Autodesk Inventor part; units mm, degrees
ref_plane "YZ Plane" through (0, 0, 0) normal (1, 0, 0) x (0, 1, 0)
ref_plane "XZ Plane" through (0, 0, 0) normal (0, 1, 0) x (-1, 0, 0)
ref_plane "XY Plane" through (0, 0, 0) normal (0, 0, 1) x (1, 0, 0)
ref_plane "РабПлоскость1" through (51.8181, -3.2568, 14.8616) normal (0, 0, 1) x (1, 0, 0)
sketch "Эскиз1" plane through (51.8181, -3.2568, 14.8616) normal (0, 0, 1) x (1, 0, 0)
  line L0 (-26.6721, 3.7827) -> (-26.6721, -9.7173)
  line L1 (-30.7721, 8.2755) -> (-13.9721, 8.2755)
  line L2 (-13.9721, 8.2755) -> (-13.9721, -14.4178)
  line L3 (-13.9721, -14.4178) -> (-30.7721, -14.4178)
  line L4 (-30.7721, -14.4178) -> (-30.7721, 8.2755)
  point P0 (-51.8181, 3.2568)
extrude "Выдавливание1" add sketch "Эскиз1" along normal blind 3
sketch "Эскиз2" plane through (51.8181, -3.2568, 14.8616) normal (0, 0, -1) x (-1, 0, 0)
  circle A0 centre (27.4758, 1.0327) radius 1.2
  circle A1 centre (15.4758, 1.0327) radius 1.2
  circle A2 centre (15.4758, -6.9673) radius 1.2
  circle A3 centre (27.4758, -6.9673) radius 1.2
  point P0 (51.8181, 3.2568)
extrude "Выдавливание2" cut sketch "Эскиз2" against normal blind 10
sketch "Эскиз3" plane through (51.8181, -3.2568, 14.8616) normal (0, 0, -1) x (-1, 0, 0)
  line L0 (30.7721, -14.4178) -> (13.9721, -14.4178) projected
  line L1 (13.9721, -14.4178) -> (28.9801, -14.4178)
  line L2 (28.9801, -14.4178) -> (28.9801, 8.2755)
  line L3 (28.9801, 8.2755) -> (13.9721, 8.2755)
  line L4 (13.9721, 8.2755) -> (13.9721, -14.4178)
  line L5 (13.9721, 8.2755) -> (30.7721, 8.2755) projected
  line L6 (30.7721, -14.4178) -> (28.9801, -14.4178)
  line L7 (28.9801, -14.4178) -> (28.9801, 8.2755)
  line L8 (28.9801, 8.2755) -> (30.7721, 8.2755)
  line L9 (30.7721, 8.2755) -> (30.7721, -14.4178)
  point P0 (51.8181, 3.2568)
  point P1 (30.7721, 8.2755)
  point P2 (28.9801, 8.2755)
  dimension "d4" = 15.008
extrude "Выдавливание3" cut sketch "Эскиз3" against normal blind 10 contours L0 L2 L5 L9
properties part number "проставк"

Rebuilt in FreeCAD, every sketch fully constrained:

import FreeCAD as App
import Part
import Sketcher

V = App.Vector


def add_polygon(sketch, points):
    """Adds a closed chain of lines whose ends are joined by coincident constraints."""
    first, n = sketch.GeometryCount, len(points)
    for a, b in zip(points, points[1:] + points[:1]):
        sketch.addGeometry(Part.LineSegment(App.Vector(*a, 0), App.Vector(*b, 0)), False)
    for i in range(n):
        sketch.addConstraint(Sketcher.Constraint("Coincident", first + i, 2, first + (i + 1) % n, 1))

doc = App.newDocument("Part")
params = doc.addObject("Spreadsheet::Sheet", "Params")
for row, (alias, value) in enumerate([
    ("sketch1_width", "16.8 mm"),
    ("pad1_length", "3 mm"),
    ("sketch2_diameter", "2.4 mm"),
    ("pocket1_length", "10 mm"),
    ("pocket2_length", "10 mm"),
], start=1):
    params.set(f"A{row}", alias)
    params.set(f"B{row}", "=" + value)
    params.setAlias(f"B{row}", alias)

body = doc.addObject("PartDesign::Body", "Body")

sketch1 = body.newObject("Sketcher::SketchObject", "Sketch")
sketch1.AttachmentSupport = (doc.getObject("XY_Plane"), [""])
sketch1.MapMode = "FlatFace"
sketch1.AttachmentOffset = App.Placement(V(0, 0, 14.8616), App.Rotation())
add_polygon(sketch1, [(38, 5), (21, 5), (21, -18), (38, -18)])
sketch1.addConstraint([
    Sketcher.Constraint("Horizontal", 0),
    Sketcher.Constraint("Vertical", 1),
    Sketcher.Constraint("Horizontal", 2),
    Sketcher.Constraint("Vertical", 3),
    Sketcher.Constraint("DistanceX", 0, 2, 0, 1, 16.8),
    Sketcher.Constraint("DistanceY", 1, 2, 1, 1, 22.6933),
    Sketcher.Constraint("DistanceX", -1, 1, 0, 2, 21.046),
    Sketcher.Constraint("DistanceY", -1, 1, 0, 2, 5.0187),
])
sketch1.setExpression("Constraints[8]", "Params.sketch1_width")
pad1 = body.newObject("PartDesign::Pad", "Pad")
pad1.Profile = sketch1
pad1.setExpression("Length", "Params.pad1_length")

sketch2 = body.newObject("Sketcher::SketchObject", "Sketch001")
sketch2.AttachmentSupport = (doc.getObject("XY_Plane"), [""])
sketch2.MapMode = "FlatFace"
sketch2.AttachmentOffset = App.Placement(V(0, 0, 14.8616), App.Rotation())
sketch2.addGeometry([
    Part.Circle(V(24.3, -2.2, 0), V(0, 0, 1), 1.2),
    Part.Circle(V(36.3, -2.2, 0), V(0, 0, 1), 1.2),
    Part.Circle(V(36.3, -10.2, 0), V(0, 0, 1), 1.2),
    Part.Circle(V(24.3, -10.2, 0), V(0, 0, 1), 1.2),
], False)
sketch2.addConstraint([
    Sketcher.Constraint("Equal", 0, 1),
    Sketcher.Constraint("Equal", 1, 2),
    Sketcher.Constraint("Equal", 2, 3),
    Sketcher.Constraint("Horizontal", 0, 3, 1, 3),
    Sketcher.Constraint("Horizontal", 2, 3, 3, 3),
    Sketcher.Constraint("Vertical", 1, 3, 2, 3),
    Sketcher.Constraint("Vertical", 0, 3, 3, 3),
    Sketcher.Constraint("Diameter", 0, 2.4),
    Sketcher.Constraint("DistanceX", 0, 3, 1, 3, 12.0),
    Sketcher.Constraint("DistanceY", 2, 3, 1, 3, 8.0),
    Sketcher.Constraint("DistanceY", 0, 3, -1, 1, 2.224),
    Sketcher.Constraint("DistanceX", -1, 1, 0, 3, 24.3423),
])
sketch2.setExpression("Constraints[7]", "Params.sketch2_diameter")
pocket1 = body.newObject("PartDesign::Pocket", "Pocket")
pocket1.Profile = sketch2
pocket1.setExpression("Length", "Params.pocket1_length")
pocket1.Reversed = True

sketch3 = body.newObject("Sketcher::SketchObject", "Sketch002")
sketch3.AttachmentSupport = (doc.getObject("XY_Plane"), [""])
sketch3.MapMode = "FlatFace"
sketch3.AttachmentOffset = App.Placement(V(0, 0, 14.8616), App.Rotation())
add_polygon(sketch3, [(22.8, -17.7), (21, -17.7), (21, 5), (22.8, 5)])
sketch3.addConstraint([
    Sketcher.Constraint("Horizontal", 0),
    Sketcher.Constraint("Vertical", 1),
    Sketcher.Constraint("Horizontal", 2),
    Sketcher.Constraint("Vertical", 3),
    Sketcher.Constraint("DistanceX", 0, 2, 0, 1, 1.792),
    Sketcher.Constraint("DistanceY", 1, 1, 1, 2, 22.6933),
    Sketcher.Constraint("DistanceX", -1, 1, 0, 2, 21.046),
    Sketcher.Constraint("DistanceY", 0, 2, -1, 1, 17.6746),
])
pocket2 = body.newObject("PartDesign::Pocket", "Pocket001")
pocket2.Profile = sketch3
pocket2.setExpression("Length", "Params.pocket2_length")
pocket2.Reversed = True

doc.recompute()
